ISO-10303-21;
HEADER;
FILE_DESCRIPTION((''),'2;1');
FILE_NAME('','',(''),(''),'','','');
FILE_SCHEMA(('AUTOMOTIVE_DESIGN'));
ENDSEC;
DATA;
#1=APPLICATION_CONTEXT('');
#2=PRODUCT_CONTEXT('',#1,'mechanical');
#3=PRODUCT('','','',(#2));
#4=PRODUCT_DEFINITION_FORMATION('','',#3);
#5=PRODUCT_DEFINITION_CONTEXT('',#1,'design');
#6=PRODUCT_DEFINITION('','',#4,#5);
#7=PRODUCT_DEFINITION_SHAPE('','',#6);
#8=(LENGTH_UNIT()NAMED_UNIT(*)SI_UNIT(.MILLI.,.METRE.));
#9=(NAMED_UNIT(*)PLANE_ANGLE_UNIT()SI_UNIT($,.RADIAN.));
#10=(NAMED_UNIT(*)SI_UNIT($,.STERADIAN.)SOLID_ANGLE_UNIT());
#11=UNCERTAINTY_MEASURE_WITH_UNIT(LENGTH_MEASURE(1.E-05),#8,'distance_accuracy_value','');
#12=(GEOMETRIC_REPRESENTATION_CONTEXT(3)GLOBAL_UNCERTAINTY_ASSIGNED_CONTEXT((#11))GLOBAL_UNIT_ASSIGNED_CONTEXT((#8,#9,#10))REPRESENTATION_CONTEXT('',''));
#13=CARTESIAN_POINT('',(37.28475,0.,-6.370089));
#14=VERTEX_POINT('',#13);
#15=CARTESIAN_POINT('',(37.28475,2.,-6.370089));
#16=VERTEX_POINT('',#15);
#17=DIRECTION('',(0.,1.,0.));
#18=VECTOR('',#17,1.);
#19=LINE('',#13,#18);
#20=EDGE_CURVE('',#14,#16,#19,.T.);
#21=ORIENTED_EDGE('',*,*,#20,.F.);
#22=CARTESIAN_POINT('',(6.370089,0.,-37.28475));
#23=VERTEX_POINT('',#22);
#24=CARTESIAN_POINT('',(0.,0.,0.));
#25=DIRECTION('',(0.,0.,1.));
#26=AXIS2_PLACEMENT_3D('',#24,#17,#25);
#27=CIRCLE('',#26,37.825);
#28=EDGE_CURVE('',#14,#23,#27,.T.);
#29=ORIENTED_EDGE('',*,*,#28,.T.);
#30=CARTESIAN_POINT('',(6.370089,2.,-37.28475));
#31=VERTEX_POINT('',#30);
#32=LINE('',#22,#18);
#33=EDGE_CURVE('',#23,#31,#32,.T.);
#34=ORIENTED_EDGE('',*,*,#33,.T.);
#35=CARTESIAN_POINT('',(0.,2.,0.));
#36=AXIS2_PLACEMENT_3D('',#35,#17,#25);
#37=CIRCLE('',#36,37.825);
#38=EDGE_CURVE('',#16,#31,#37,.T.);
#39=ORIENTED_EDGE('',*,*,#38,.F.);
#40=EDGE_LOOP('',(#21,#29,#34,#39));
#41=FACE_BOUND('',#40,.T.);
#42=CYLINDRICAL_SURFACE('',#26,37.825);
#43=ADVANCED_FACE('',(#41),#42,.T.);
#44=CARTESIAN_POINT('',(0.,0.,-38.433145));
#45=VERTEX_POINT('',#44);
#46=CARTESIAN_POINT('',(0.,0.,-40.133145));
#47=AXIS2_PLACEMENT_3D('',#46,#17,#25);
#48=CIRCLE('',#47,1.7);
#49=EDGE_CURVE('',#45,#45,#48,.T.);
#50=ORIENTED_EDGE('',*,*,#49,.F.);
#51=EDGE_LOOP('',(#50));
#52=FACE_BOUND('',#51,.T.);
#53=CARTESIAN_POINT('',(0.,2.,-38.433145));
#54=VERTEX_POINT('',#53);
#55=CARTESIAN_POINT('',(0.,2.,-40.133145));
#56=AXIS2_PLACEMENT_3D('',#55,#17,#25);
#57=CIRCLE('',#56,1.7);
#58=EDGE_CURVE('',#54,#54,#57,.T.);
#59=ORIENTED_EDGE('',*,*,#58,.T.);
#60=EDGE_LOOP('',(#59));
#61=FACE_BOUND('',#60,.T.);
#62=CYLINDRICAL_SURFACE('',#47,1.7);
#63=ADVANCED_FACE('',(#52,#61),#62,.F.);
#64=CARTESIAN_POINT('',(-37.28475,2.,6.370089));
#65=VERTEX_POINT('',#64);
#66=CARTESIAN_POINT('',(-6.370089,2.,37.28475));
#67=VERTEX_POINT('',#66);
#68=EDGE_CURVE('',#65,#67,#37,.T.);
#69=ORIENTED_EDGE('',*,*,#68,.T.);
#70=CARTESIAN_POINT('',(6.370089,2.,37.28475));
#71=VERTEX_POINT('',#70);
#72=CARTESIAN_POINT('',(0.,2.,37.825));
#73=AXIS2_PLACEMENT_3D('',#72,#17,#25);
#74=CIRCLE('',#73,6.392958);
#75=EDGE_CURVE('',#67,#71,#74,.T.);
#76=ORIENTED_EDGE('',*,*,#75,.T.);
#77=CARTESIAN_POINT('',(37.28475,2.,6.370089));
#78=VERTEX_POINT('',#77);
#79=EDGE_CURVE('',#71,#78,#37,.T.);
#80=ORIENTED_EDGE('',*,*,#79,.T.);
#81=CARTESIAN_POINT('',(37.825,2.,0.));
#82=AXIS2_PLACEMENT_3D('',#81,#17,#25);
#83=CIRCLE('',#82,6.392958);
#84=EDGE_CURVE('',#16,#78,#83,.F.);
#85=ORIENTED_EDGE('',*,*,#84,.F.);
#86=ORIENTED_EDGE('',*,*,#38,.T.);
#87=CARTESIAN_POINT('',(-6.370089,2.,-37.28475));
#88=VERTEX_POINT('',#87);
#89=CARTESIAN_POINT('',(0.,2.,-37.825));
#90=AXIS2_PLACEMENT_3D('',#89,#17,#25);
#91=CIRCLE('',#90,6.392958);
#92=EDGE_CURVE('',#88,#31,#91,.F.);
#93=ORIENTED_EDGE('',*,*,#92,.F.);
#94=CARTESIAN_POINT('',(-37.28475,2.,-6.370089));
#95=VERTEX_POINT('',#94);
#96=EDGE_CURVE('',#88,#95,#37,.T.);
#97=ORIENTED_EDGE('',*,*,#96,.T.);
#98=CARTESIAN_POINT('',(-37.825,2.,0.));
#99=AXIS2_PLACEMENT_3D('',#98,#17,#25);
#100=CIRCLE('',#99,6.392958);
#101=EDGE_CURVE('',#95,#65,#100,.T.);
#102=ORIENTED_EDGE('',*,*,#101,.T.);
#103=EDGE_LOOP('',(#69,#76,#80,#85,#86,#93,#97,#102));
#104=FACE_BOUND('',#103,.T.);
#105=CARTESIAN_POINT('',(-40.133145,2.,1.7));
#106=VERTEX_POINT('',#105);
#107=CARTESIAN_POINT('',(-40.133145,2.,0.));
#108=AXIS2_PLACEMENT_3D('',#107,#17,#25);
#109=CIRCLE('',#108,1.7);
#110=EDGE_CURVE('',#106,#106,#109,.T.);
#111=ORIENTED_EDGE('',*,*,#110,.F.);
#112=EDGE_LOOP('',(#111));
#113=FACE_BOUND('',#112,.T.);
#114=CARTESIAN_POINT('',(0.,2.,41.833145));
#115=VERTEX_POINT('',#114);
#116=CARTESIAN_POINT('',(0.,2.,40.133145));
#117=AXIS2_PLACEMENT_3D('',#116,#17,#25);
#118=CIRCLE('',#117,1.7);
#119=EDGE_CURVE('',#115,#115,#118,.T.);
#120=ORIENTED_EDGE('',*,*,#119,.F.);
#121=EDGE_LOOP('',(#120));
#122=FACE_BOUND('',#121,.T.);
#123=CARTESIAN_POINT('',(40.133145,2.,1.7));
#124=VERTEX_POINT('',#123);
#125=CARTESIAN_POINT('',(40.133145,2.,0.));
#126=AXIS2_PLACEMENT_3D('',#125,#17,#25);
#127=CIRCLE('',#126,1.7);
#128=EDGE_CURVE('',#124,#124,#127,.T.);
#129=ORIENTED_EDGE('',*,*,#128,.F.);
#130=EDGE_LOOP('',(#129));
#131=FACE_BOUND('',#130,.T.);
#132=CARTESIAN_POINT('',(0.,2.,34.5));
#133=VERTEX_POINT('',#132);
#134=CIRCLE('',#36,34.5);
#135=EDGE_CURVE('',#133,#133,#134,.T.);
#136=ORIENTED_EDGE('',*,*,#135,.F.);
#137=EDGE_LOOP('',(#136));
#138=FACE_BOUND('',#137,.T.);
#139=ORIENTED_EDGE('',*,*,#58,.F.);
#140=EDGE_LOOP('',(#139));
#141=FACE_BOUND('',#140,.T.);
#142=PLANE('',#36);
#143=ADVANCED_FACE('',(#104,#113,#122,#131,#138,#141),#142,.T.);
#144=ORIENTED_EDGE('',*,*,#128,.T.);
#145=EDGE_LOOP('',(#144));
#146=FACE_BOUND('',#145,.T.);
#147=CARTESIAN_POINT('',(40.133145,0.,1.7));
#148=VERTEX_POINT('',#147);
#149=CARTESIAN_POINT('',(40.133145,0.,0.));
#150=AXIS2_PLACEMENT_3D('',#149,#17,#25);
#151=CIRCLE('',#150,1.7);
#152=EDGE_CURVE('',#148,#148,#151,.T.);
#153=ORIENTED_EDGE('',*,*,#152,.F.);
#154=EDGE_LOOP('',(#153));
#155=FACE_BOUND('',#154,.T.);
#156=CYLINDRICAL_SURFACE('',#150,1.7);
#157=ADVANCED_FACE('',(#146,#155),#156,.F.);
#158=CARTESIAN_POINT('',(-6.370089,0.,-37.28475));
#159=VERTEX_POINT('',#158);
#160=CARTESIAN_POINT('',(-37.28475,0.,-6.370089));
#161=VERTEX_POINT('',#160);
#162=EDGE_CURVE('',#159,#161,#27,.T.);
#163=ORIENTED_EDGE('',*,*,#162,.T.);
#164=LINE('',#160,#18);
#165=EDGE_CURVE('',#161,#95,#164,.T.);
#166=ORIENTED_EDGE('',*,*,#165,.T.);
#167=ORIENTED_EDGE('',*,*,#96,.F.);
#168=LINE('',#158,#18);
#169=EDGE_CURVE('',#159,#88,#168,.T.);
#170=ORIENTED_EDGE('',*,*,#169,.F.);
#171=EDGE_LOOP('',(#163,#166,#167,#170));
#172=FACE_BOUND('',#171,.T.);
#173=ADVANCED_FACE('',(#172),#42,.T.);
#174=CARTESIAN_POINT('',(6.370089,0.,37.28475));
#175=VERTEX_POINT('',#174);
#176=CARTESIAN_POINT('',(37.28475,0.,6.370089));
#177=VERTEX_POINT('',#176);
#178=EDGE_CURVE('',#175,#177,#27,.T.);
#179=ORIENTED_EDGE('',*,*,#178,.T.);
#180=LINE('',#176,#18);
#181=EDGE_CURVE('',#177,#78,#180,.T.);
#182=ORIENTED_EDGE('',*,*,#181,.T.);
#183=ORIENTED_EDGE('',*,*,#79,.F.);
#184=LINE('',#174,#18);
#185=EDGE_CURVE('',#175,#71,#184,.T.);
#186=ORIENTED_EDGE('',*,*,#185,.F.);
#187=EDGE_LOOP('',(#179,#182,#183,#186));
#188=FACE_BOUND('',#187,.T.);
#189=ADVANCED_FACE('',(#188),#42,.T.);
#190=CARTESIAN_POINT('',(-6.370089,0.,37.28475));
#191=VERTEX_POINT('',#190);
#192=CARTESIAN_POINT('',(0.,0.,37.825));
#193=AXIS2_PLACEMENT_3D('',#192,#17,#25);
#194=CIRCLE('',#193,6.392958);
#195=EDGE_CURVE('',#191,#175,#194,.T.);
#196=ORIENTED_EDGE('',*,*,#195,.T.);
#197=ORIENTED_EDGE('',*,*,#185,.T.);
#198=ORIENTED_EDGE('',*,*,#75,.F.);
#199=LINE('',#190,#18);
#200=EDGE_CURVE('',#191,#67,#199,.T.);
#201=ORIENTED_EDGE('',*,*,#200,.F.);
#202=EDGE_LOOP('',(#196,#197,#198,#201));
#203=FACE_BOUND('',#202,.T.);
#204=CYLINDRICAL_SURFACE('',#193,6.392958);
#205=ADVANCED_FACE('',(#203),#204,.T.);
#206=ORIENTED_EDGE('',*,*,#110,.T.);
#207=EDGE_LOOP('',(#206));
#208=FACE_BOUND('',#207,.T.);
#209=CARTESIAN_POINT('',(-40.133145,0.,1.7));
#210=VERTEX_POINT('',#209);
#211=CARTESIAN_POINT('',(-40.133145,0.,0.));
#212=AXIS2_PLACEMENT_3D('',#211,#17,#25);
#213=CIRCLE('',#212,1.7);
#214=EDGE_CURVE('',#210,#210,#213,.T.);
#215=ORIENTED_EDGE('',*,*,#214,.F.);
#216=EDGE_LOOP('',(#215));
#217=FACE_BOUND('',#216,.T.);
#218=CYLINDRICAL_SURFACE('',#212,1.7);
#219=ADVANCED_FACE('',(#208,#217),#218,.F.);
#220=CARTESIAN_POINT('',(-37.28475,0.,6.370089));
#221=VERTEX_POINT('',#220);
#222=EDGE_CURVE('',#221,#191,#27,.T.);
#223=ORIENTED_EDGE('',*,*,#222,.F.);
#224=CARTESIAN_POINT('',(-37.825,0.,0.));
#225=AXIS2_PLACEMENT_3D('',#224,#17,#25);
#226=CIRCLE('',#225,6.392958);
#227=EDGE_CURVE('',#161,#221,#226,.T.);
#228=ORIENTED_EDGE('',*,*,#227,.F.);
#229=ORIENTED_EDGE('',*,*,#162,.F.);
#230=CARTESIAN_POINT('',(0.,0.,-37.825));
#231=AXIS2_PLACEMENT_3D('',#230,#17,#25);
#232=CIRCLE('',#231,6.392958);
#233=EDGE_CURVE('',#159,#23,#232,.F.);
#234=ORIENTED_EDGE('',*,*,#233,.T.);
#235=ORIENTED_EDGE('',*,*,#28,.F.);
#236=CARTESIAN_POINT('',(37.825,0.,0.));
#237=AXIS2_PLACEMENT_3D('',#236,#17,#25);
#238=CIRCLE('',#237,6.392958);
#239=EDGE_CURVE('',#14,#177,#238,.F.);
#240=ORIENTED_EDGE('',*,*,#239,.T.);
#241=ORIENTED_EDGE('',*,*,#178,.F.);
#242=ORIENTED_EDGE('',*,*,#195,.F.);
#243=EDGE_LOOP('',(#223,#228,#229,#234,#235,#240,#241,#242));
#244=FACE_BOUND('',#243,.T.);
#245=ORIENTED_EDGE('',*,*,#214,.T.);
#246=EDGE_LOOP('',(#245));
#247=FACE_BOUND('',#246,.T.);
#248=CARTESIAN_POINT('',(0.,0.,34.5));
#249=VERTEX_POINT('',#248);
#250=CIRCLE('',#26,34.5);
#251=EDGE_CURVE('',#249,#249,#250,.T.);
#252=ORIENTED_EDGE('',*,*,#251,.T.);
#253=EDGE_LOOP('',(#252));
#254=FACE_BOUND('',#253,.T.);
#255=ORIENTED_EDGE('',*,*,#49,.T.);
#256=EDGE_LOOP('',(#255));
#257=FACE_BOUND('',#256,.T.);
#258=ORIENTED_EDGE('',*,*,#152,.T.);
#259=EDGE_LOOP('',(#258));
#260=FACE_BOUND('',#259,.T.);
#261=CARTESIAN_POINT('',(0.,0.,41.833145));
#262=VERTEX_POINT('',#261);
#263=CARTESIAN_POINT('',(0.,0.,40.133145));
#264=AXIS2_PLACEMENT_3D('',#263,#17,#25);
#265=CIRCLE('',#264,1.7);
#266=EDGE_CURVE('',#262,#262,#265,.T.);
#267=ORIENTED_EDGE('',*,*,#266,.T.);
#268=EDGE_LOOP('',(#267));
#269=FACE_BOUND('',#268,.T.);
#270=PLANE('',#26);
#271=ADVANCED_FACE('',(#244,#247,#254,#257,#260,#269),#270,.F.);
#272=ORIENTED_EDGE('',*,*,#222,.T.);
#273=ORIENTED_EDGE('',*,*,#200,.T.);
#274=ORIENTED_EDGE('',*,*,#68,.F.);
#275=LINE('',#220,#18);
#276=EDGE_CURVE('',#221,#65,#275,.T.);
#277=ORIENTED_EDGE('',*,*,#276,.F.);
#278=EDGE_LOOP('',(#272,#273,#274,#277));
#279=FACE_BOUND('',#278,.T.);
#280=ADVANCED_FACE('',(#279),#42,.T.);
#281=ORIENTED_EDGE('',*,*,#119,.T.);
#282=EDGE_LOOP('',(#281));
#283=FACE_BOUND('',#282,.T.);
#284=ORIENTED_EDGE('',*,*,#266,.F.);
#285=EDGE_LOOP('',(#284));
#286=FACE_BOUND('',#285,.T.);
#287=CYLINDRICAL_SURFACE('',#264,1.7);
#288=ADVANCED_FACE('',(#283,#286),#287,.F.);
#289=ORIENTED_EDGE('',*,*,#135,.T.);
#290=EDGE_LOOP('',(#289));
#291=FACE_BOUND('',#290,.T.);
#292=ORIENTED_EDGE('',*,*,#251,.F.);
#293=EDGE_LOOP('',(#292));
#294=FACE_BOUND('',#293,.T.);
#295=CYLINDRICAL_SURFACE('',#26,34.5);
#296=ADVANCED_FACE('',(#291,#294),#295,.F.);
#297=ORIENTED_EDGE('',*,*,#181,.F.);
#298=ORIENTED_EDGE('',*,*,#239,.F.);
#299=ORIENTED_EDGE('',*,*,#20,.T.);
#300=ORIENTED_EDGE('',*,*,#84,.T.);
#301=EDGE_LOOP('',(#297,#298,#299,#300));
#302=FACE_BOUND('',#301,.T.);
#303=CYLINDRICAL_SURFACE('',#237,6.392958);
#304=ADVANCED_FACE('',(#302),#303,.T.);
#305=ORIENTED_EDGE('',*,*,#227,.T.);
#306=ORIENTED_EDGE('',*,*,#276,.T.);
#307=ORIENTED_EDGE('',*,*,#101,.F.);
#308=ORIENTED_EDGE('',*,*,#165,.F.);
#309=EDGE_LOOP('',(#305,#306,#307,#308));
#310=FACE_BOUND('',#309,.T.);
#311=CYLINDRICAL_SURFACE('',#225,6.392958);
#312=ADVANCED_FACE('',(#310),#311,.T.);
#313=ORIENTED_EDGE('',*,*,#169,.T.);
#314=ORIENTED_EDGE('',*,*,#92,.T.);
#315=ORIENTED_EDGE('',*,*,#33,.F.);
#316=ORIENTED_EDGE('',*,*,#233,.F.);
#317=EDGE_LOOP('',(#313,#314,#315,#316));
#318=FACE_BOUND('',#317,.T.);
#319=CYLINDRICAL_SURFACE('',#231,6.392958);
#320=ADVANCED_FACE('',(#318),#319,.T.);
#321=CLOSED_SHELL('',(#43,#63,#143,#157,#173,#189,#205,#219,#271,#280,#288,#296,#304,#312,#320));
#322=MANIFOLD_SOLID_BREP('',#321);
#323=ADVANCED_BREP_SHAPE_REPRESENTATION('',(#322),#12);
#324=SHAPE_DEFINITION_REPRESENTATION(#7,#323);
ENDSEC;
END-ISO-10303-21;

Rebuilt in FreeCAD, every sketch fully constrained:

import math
import FreeCAD as App
import Part
import Sketcher
Q = App.Units.Quantity


def add_polygon(sketch, points):
    """Adds a closed chain of lines whose ends are joined by coincident constraints."""
    first, n = sketch.GeometryCount, len(points)
    for a, b in zip(points, points[1:] + points[:1]):
        sketch.addGeometry(Part.LineSegment(App.Vector(*a, 0), App.Vector(*b, 0)), False)
    for i in range(n):
        sketch.addConstraint(Sketcher.Constraint("Coincident", first + i, 2, first + (i + 1) % n, 1))

doc = App.newDocument("Part")
body = doc.addObject("PartDesign::Body", "Body")

sketch1 = doc.addObject("Sketcher::SketchObject", "Sketch")
body.addObject(sketch1)
sketch1.AttachmentSupport = (doc.XZ_Plane, [""])
sketch1.MapMode = "FlatFace"
add_polygon(sketch1, [(-118, -106), (-118, 106), (118, 106), (118, -106)])
sketch1.addConstraint([
    Sketcher.Constraint("Vertical", 0),
    Sketcher.Constraint("Horizontal", 1),
    Sketcher.Constraint("Vertical", 2),
    Sketcher.Constraint("Horizontal", 3),
    Sketcher.Constraint("Symmetric", 0, 2, 2, 2, -1, 1),
    Sketcher.Constraint("DistanceX", 1, 1, 1, 2, Q("236.719909 mm")),
    Sketcher.Constraint("DistanceY", 0, 1, 0, 2, Q("211.092865 mm")),
])
pad1 = doc.addObject("PartDesign::Pad", "Pad")
body.addObject(pad1)
pad1.Profile = sketch1
pad1.Length = 2
pad1.Reversed = True

sketch2 = doc.addObject("Sketcher::SketchObject", "Sketch001")
body.addObject(sketch2)
sketch2.AttachmentSupport = (doc.XZ_Plane, [""])
sketch2.MapMode = "FlatFace"
sketch2.AttachmentOffset = App.Placement(App.Vector(0, 0, -2), App.Rotation())
sketch2.addGeometry(Part.Circle(App.Vector(0, 0, 0), App.Vector(0, 0, 1), 34), False)
sketch2.addConstraint([
    Sketcher.Constraint("Coincident", 0, 3, -1, 1),
    Sketcher.Constraint("Diameter", 0, Q("69 mm")),
])
pocket1 = doc.addObject("PartDesign::Pocket", "Pocket")
body.addObject(pocket1)
pocket1.Profile = sketch2
pocket1.Length = 2
pocket1.Reversed = True

sketch3 = doc.addObject("Sketcher::SketchObject", "Sketch002")
body.addObject(sketch3)
sketch3.AttachmentSupport = (doc.XZ_Plane, [""])
sketch3.MapMode = "FlatFace"
sketch3.AttachmentOffset = App.Placement(App.Vector(0, 0, -2), App.Rotation())
add_polygon(sketch3, [(-118, -106), (-118, 106), (118, 106), (118, -106)])
sketch3.addGeometry(Part.ArcOfCircle(Part.Circle(App.Vector(0, -38, 0), App.Vector(0, 0, 1), 6), math.radians(175), math.radians(365)), False)
sketch3.addGeometry(Part.ArcOfCircle(Part.Circle(App.Vector(0, 0, 0), App.Vector(0, 0, 1), 38), math.radians(-80), math.radians(-10)), False)
sketch3.addGeometry(Part.ArcOfCircle(Part.Circle(App.Vector(38, 0, 0), App.Vector(0, 0, 1), 6), math.radians(-95), math.radians(95)), False)
sketch3.addGeometry(Part.ArcOfCircle(Part.Circle(App.Vector(0, 0, 0), App.Vector(0, 0, 1), 38), math.radians(10), math.radians(80)), False)
sketch3.addGeometry(Part.ArcOfCircle(Part.Circle(App.Vector(0, 38, 0), App.Vector(0, 0, 1), 6), math.radians(-5), math.radians(185)), False)
sketch3.addGeometry(Part.ArcOfCircle(Part.Circle(App.Vector(0, 0, 0), App.Vector(0, 0, 1), 38), math.radians(100), math.radians(170)), False)
sketch3.addGeometry(Part.ArcOfCircle(Part.Circle(App.Vector(-38, 0, 0), App.Vector(0, 0, 1), 6), math.radians(85), math.radians(275)), False)
sketch3.addGeometry(Part.ArcOfCircle(Part.Circle(App.Vector(0, 0, 0), App.Vector(0, 0, 1), 38), math.radians(-170), math.radians(-100)), False)
sketch3.addConstraint([
    Sketcher.Constraint("Coincident", 4, 2, 5, 1),
    Sketcher.Constraint("Coincident", 5, 2, 6, 1),
    Sketcher.Constraint("Coincident", 6, 2, 7, 1),
    Sketcher.Constraint("Coincident", 7, 2, 8, 1),
    Sketcher.Constraint("Coincident", 8, 2, 9, 1),
    Sketcher.Constraint("Coincident", 9, 2, 10, 1),
    Sketcher.Constraint("Coincident", 10, 2, 11, 1),
    Sketcher.Constraint("Coincident", 11, 2, 4, 1),
    Sketcher.Constraint("Vertical", 0),
    Sketcher.Constraint("Horizontal", 1),
    Sketcher.Constraint("Vertical", 2),
    Sketcher.Constraint("Horizontal", 3),
    Sketcher.Constraint("Coincident", 5, 3, -1, 1),
    Sketcher.Constraint("Coincident", 7, 3, -1, 1),
    Sketcher.Constraint("Coincident", 9, 3, -1, 1),
    Sketcher.Constraint("Coincident", 11, 3, -1, 1),
    Sketcher.Constraint("Equal", 4, 6),
    Sketcher.Constraint("Equal", 5, 7),
    Sketcher.Constraint("Equal", 6, 8),
    Sketcher.Constraint("Equal", 7, 9),
    Sketcher.Constraint("Equal", 8, 10),
    Sketcher.Constraint("Equal", 9, 11),
    Sketcher.Constraint("Symmetric", 4, 3, 8, 3, -1, 1),
    Sketcher.Constraint("Symmetric", 6, 3, 10, 3, -1, 1),
    Sketcher.Constraint("Symmetric", 0, 2, 2, 2, -1, 1),
    Sketcher.Constraint("PointOnObject", 4, 3, -2),
    Sketcher.Constraint("PointOnObject", 6, 3, -1),
    Sketcher.Constraint("Radius", 5, Q("37.825 mm")),
    Sketcher.Constraint("DistanceY", 4, 3, 8, 3, Q("75.65 mm")),
    Sketcher.Constraint("DistanceX", -1, 1, 6, 3, Q("37.825 mm")),
    Sketcher.Constraint("Radius", 4, Q("6.392958 mm")),
    Sketcher.Constraint("DistanceX", 1, 1, 1, 2, Q("236.719909 mm")),
    Sketcher.Constraint("DistanceY", 0, 1, 0, 2, Q("211.092865 mm")),
])
pocket2 = doc.addObject("PartDesign::Pocket", "Pocket001")
body.addObject(pocket2)
pocket2.Profile = sketch3
pocket2.Length = 2
pocket2.Reversed = True

sketch4 = doc.addObject("Sketcher::SketchObject", "Sketch003")
body.addObject(sketch4)
sketch4.AttachmentSupport = (doc.XZ_Plane, [""])
sketch4.MapMode = "FlatFace"
sketch4.AttachmentOffset = App.Placement(App.Vector(0, 0, -2), App.Rotation())
sketch4.addGeometry([
    Part.Circle(App.Vector(0, -40.1, 0), App.Vector(0, 0, 1), 1.7),
    Part.Circle(App.Vector(-40.1, 0, 0), App.Vector(0, 0, 1), 1.7),
    Part.Circle(App.Vector(0, 40.1, 0), App.Vector(0, 0, 1), 1.7),
    Part.Circle(App.Vector(40.1, 0, 0), App.Vector(0, 0, 1), 1.7),
], False)
sketch4.addConstraint([
    Sketcher.Constraint("Equal", 0, 1),
    Sketcher.Constraint("Equal", 1, 2),
    Sketcher.Constraint("Equal", 2, 3),
    Sketcher.Constraint("Symmetric", 0, 3, 2, 3, -1, 1),
    Sketcher.Constraint("Symmetric", 1, 3, 3, 3, -1, 1),
    Sketcher.Constraint("PointOnObject", 0, 3, -2),
    Sketcher.Constraint("PointOnObject", 1, 3, -1),
    Sketcher.Constraint("Diameter", 0, Q("3.4 mm")),
    Sketcher.Constraint("DistanceY", 0, 3, 2, 3, Q("80.266291 mm")),
    Sketcher.Constraint("DistanceX", 1, 3, 3, 3, Q("80.266291 mm")),
])
pocket3 = doc.addObject("PartDesign::Pocket", "Pocket002")
body.addObject(pocket3)
pocket3.Profile = sketch4
pocket3.Length = 2
pocket3.Reversed = True

doc.recompute()
